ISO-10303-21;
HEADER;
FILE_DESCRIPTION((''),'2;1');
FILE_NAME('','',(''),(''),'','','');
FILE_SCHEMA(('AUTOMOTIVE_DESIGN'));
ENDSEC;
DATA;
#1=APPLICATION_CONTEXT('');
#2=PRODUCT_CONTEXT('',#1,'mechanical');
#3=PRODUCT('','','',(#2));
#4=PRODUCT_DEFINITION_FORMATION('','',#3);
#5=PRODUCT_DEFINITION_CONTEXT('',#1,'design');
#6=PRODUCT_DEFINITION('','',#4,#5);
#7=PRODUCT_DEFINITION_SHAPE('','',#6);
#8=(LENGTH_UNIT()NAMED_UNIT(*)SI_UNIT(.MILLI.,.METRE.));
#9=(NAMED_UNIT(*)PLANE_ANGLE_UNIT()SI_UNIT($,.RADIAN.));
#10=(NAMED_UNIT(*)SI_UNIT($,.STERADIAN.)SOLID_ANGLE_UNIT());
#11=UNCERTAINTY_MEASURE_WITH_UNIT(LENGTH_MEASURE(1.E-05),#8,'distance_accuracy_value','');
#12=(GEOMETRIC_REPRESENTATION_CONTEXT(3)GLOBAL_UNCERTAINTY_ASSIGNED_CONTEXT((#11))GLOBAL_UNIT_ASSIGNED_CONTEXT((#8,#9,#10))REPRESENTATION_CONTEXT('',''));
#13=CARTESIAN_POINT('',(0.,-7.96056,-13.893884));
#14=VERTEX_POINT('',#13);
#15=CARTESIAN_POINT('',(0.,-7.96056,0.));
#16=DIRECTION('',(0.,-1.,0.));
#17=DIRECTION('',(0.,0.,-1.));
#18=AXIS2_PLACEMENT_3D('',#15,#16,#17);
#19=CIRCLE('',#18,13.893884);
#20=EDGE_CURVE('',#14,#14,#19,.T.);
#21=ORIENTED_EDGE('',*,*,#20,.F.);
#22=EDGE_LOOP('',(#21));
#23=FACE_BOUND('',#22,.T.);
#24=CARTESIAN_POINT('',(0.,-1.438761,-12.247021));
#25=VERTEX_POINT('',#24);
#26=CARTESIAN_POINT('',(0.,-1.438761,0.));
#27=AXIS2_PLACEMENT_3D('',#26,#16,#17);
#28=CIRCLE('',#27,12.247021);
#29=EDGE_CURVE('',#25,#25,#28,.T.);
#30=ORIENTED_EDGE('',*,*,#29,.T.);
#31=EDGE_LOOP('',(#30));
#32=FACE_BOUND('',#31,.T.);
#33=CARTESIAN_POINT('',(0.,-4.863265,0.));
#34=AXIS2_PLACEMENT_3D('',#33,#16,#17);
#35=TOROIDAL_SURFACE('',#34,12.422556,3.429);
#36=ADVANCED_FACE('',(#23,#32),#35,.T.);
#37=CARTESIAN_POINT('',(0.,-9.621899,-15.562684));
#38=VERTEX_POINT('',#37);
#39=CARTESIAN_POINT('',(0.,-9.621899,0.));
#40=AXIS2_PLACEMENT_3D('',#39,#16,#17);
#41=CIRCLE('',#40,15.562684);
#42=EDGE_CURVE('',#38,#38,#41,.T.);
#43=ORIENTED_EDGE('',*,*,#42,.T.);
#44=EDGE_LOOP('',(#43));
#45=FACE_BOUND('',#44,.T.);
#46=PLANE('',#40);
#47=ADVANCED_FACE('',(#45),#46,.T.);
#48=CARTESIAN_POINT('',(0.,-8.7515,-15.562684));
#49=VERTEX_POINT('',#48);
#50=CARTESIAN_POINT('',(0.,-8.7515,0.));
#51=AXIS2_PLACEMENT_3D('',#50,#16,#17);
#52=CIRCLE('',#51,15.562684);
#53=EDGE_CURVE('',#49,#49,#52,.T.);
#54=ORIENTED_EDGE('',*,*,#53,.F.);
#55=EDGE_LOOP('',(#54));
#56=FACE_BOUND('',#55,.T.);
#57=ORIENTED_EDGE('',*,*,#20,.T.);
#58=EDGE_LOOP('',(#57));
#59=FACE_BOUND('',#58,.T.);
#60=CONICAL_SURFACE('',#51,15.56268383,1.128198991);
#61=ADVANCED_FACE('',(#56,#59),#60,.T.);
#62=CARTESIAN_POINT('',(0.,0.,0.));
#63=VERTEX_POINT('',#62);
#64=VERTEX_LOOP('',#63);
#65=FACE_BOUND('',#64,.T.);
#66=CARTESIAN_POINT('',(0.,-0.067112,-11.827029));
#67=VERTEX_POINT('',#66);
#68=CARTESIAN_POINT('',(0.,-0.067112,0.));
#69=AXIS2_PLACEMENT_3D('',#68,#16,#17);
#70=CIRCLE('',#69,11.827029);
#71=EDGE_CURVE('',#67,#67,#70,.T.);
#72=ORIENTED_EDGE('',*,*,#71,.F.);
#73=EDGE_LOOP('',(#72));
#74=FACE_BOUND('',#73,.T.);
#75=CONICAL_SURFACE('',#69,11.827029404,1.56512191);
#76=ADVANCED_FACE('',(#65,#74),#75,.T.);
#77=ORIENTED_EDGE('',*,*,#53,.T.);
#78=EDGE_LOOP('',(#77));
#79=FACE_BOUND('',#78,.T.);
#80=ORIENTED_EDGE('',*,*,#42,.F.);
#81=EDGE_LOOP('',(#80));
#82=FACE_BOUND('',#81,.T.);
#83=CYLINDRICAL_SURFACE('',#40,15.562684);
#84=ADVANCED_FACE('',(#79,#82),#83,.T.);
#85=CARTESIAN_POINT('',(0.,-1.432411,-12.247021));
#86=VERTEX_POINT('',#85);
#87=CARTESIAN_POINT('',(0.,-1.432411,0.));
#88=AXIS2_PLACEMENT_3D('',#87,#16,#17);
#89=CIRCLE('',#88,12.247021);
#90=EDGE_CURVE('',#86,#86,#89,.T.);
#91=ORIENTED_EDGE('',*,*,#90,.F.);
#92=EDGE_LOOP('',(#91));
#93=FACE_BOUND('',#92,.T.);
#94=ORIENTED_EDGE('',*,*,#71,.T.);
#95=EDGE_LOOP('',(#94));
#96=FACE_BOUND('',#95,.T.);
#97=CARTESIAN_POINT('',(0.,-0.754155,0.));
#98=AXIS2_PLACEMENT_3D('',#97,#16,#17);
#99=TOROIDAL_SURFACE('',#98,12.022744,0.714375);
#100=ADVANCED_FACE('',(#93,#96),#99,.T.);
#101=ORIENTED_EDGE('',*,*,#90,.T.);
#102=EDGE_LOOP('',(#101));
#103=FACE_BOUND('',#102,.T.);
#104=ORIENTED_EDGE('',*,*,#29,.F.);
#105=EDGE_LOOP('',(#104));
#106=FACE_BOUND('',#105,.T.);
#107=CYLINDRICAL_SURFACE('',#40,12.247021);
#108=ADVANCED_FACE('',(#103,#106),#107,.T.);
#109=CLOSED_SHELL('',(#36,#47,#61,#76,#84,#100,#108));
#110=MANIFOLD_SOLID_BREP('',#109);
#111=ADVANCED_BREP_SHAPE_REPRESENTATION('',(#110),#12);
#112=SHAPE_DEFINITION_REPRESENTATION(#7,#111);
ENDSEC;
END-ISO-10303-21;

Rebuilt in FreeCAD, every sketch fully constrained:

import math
import FreeCAD as App
import Part
import Sketcher
Q = App.Units.Quantity

doc = App.newDocument("Part")
params = doc.addObject("Spreadsheet::Sheet", "Params")
for row, (alias, value) in enumerate([
    ("sketch1_radius", "0.135 in"),
    ("revolution_angle", "360 deg"),
], start=1):
    params.set(f"A{row}", alias)
    params.set(f"B{row}", "=" + value)
    params.setAlias(f"B{row}", alias)

body = doc.addObject("PartDesign::Body", "Body")

sketch1 = body.newObject("Sketcher::SketchObject", "Sketch")
sketch1.AttachmentSupport = (doc.getObject("XY_Plane"), [""])
sketch1.MapMode = "FlatFace"
sketch1.addGeometry(Part.LineSegment(App.Vector(0, 0, 0), App.Vector(0, -9.622, 0)), False)
sketch1.addGeometry(Part.LineSegment(App.Vector(0, -9.622, 0), App.Vector(15.563, -9.622, 0)), False)
sketch1.addGeometry(Part.LineSegment(App.Vector(15.563, -9.622, 0), App.Vector(15.563, -8.752, 0)), False)
sketch1.addGeometry(Part.LineSegment(App.Vector(15.563, -8.752, 0), App.Vector(13.894, -7.961, 0)), False)
sketch1.addGeometry(Part.ArcOfCircle(Part.Circle(App.Vector(12.423, -4.863, 0), App.Vector(0, 0, 1), 3.429), math.radians(-65), math.radians(93)), False)
sketch1.addGeometry(Part.LineSegment(App.Vector(12.247, -1.439, 0), App.Vector(12.247, -1.432, 0)), False)
sketch1.addGeometry(Part.ArcOfCircle(Part.Circle(App.Vector(12.023, -0.754, 0), App.Vector(0, 0, 1), 0.714), math.radians(-72), math.radians(106)), False)
sketch1.addGeometry(Part.LineSegment(App.Vector(11.827, -0.067, 0), App.Vector(0, 0, 0)), False)
sketch1.addConstraint(Sketcher.Constraint("Coincident", 0, 2, 1, 1))
sketch1.addConstraint(Sketcher.Constraint("Coincident", 1, 2, 2, 1))
sketch1.addConstraint(Sketcher.Constraint("Coincident", 2, 2, 3, 1))
sketch1.addConstraint(Sketcher.Constraint("Coincident", 3, 2, 4, 1))
sketch1.addConstraint(Sketcher.Constraint("Coincident", 4, 2, 5, 1))
sketch1.addConstraint(Sketcher.Constraint("Coincident", 5, 2, 6, 1))
sketch1.addConstraint(Sketcher.Constraint("Coincident", 6, 2, 7, 1))
sketch1.addConstraint(Sketcher.Constraint("Coincident", 7, 2, 0, 1))
sketch1.addConstraint(Sketcher.Constraint("Vertical", 0))
sketch1.addConstraint(Sketcher.Constraint("Horizontal", 1))
sketch1.addConstraint(Sketcher.Constraint("Vertical", 2))
sketch1.addConstraint(Sketcher.Constraint("Vertical", 5))
sketch1.addConstraint(Sketcher.Constraint("Coincident", 7, 2, -1, 1))
sketch1.addConstraint(Sketcher.Constraint("Radius", 4, Q("0.135 in")))
sketch1.addConstraint(Sketcher.Constraint("DistanceY", 0, 2, 0, 1, Q("9.621899 mm")))
sketch1.addConstraint(Sketcher.Constraint("DistanceY", 2, 1, 2, 2, Q("0.870399 mm")))
sketch1.addConstraint(Sketcher.Constraint("Radius", 6, Q("0.714375 mm")))
sketch1.addConstraint(Sketcher.Constraint("DistanceY", 5, 1, 5, 2, Q("0.00635 mm")))
sketch1.addConstraint(Sketcher.Constraint("DistanceX", 3, 2, 2, 2, Q("1.6688 mm")))
sketch1.addConstraint(Sketcher.Constraint("DistanceY", 3, 2, 4, 2, Q("6.521799 mm")))
sketch1.addConstraint(Sketcher.Constraint("DistanceY", 5, 2, 6, 2, Q("1.365299 mm")))
sketch1.addConstraint(Sketcher.Constraint("Distance", 3, Q("1.846749 mm")))
sketch1.addConstraint(Sketcher.Constraint("Distance", 7, Q("11.82722 mm")))
sketch1.addConstraint(Sketcher.Constraint("DistanceX", 1, 1, 1, 2, Q("15.562684 mm")))
sketch1.addConstraint(Sketcher.Constraint("DistanceX", -1, 1, 4, 2, Q("12.247021 mm")))
sketch1.setExpression("Constraints[13]", "Params.sketch1_radius")
revolution = body.newObject("PartDesign::Revolution", "Revolution")
revolution.Profile = sketch1
revolution.ReferenceAxis = (sketch1, ["V_Axis"])
revolution.setExpression("Angle", "Params.revolution_angle")

doc.recompute()
